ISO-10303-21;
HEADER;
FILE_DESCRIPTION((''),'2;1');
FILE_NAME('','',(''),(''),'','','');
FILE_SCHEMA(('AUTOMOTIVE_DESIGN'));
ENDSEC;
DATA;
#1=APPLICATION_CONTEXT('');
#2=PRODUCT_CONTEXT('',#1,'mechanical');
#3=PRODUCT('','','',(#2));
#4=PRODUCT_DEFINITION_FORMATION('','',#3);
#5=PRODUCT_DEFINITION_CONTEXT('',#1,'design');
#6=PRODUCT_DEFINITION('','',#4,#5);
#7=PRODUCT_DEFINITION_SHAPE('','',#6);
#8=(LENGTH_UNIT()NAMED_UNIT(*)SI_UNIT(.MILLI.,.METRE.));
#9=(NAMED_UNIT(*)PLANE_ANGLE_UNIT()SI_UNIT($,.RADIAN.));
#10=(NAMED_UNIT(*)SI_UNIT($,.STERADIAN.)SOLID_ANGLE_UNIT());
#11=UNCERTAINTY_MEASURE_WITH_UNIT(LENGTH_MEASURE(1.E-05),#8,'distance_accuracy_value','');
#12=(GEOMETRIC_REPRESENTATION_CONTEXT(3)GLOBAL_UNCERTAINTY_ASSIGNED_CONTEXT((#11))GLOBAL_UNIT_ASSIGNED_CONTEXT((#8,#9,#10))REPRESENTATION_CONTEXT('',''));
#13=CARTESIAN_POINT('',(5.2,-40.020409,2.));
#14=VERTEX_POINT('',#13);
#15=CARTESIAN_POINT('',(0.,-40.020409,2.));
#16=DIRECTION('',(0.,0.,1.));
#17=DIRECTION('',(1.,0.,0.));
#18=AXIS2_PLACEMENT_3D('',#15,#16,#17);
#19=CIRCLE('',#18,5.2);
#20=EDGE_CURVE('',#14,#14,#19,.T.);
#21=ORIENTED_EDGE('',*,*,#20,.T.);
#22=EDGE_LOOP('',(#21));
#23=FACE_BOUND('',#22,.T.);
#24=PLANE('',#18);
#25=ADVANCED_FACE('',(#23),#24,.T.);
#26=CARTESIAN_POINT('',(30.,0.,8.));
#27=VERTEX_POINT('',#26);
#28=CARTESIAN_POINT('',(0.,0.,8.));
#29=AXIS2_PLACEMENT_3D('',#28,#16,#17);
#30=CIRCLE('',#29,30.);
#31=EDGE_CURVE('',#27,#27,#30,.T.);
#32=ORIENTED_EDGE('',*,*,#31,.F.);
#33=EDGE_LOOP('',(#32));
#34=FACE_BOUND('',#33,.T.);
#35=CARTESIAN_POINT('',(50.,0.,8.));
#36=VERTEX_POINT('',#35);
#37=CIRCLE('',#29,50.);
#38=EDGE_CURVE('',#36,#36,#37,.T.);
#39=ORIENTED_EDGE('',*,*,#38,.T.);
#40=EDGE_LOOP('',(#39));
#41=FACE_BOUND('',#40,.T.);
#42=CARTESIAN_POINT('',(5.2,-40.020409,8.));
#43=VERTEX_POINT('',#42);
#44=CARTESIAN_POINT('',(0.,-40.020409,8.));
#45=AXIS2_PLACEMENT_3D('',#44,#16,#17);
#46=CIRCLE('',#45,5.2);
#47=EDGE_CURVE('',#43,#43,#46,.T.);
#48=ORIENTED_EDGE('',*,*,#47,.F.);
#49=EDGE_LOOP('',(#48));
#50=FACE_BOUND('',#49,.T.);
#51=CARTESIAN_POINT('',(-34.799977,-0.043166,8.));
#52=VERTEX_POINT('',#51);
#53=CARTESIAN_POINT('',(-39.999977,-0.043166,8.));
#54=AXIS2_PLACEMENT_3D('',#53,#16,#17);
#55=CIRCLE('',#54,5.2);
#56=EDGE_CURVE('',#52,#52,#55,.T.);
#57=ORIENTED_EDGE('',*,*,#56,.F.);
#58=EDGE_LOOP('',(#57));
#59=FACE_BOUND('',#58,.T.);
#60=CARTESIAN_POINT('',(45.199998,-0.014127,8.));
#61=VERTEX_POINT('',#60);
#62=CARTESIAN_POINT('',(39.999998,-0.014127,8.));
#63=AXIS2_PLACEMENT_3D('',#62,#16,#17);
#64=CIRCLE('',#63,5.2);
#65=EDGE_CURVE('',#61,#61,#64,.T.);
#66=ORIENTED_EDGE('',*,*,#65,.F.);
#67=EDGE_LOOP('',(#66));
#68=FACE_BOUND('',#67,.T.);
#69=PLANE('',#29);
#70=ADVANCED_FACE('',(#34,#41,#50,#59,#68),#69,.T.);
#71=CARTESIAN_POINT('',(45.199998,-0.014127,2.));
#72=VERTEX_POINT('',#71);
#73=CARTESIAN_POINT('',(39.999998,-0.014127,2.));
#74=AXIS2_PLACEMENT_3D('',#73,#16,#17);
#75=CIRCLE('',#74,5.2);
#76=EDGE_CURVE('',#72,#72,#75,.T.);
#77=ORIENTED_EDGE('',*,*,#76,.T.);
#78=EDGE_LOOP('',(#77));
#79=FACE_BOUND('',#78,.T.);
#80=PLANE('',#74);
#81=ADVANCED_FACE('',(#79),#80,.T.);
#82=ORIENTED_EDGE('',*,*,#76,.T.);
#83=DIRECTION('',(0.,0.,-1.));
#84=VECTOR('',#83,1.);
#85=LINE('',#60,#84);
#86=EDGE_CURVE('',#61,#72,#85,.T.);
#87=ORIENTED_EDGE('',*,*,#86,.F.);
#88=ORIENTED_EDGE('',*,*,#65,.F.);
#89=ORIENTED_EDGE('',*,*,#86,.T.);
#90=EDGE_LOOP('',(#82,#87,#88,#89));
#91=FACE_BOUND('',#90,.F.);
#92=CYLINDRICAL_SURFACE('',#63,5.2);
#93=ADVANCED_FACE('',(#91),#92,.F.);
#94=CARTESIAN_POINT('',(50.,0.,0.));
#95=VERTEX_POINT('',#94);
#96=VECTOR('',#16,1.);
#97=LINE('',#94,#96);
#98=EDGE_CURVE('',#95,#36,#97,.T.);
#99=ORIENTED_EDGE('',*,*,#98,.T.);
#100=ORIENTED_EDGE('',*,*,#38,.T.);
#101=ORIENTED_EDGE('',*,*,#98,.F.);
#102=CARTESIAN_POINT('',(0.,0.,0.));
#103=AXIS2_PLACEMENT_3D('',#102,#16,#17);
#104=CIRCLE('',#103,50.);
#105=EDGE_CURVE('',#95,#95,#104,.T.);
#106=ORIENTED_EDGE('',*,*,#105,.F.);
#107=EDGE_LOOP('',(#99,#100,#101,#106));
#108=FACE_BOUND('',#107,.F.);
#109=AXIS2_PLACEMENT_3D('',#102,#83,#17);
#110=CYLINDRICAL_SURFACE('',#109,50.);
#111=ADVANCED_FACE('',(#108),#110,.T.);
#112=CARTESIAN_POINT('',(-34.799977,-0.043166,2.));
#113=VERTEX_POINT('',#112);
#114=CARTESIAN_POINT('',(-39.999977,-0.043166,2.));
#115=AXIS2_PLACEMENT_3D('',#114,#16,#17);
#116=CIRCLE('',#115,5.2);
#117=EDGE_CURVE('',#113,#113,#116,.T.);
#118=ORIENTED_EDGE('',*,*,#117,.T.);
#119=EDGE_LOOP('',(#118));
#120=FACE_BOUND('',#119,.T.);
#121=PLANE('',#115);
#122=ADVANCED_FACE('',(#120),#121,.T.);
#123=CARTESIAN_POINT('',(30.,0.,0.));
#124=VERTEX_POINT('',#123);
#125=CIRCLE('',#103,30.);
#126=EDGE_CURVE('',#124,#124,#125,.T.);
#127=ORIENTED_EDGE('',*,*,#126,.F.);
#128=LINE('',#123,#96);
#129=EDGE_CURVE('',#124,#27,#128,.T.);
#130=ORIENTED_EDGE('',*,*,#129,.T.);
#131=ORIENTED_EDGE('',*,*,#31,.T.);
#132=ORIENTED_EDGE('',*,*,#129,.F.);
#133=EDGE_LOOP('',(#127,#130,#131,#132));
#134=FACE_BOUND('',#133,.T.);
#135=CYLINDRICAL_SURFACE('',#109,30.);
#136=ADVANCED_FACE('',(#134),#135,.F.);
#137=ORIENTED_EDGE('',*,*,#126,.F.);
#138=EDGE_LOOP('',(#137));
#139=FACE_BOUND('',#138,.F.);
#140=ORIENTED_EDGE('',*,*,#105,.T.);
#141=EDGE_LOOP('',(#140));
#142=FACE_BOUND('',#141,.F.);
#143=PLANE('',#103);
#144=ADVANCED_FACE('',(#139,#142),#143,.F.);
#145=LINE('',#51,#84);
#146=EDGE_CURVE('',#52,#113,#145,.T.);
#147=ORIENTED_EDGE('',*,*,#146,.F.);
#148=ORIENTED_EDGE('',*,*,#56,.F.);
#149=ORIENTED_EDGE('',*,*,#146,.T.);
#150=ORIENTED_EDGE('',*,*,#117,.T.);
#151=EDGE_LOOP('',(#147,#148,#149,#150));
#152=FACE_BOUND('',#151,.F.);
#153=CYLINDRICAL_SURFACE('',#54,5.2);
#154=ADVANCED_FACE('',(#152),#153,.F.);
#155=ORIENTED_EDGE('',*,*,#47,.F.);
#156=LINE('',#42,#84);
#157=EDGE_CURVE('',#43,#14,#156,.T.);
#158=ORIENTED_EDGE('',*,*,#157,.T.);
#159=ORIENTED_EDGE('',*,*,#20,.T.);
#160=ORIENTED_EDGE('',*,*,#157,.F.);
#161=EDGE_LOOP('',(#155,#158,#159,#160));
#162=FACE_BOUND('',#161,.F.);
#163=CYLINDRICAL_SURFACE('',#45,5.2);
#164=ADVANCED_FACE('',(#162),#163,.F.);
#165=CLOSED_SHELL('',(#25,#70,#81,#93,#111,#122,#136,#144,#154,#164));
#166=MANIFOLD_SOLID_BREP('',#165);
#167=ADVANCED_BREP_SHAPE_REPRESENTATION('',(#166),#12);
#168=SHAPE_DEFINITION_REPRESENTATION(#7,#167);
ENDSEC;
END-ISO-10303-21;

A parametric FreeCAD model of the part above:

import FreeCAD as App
import Part
import Sketcher
from FreeCAD import Vector
Q = App.Units.Quantity

doc = App.newDocument("Part")
body = doc.addObject("PartDesign::Body", "Body")

# Sketch on XY plane
sketch1 = body.newObject("Sketcher::SketchObject", "Sketch")
sketch1.AttachmentSupport = (doc.getObject("XY_Plane"), [""])
sketch1.MapMode = "FlatFace"
sketch1.addGeometry(Part.Circle(Vector(0, 0, 0), Vector(0, 0, 1), 50), False)
sketch1.addGeometry(Part.Circle(Vector(0, 0, 0), Vector(0, 0, 1), 30), False)
sketch1.addConstraint(Sketcher.Constraint("Coincident", 0, 3, -1, 1))
sketch1.addConstraint(Sketcher.Constraint("Coincident", 1, 3, -1, 1))
sketch1.addConstraint(Sketcher.Constraint("Diameter", 0, Q("100 mm")))
sketch1.addConstraint(Sketcher.Constraint("Diameter", 1, Q("60 mm")))
pad1 = body.newObject("PartDesign::Pad", "Pad")
pad1.Profile = sketch1
pad1.Length = 8

# Sketch on XY plane
sketch2 = body.newObject("Sketcher::SketchObject", "Sketch001")
sketch2.AttachmentSupport = (doc.getObject("XY_Plane"), [""])
sketch2.MapMode = "FlatFace"
sketch2.AttachmentOffset = App.Placement(Vector(0, 0, 8), App.Rotation())
sketch2.addGeometry(Part.Circle(Vector(-40, 0, 0), Vector(0, 0, 1), 5), False)
sketch2.addGeometry(Part.Circle(Vector(0, -40, 0), Vector(0, 0, 1), 5), False)
sketch2.addGeometry(Part.Circle(Vector(40, 0, 0), Vector(0, 0, 1), 5), False)
sketch2.addConstraint(Sketcher.Constraint("Equal", 0, 1))
sketch2.addConstraint(Sketcher.Constraint("Equal", 1, 2))
sketch2.addConstraint(Sketcher.Constraint("PointOnObject", 1, 3, -2))
sketch2.addConstraint(Sketcher.Constraint("Diameter", 0, Q("10.4 mm")))
sketch2.addConstraint(Sketcher.Constraint("DistanceY", 1, 3, -1, 1, Q("40.020409 mm")))
sketch2.addConstraint(Sketcher.Constraint("DistanceY", 0, 3, 2, 3, Q("0.029039 mm")))
sketch2.addConstraint(Sketcher.Constraint("DistanceX", 0, 3, -1, 1, Q("39.999977 mm")))
sketch2.addConstraint(Sketcher.Constraint("DistanceY", 0, 3, -1, 1, Q("0.043166 mm")))
sketch2.addConstraint(Sketcher.Constraint("DistanceX", -1, 1, 2, 3, Q("39.999998 mm")))
pocket1 = body.newObject("PartDesign::Pocket", "Pocket")
pocket1.Profile = sketch2
pocket1.Length = 6

doc.recompute()
